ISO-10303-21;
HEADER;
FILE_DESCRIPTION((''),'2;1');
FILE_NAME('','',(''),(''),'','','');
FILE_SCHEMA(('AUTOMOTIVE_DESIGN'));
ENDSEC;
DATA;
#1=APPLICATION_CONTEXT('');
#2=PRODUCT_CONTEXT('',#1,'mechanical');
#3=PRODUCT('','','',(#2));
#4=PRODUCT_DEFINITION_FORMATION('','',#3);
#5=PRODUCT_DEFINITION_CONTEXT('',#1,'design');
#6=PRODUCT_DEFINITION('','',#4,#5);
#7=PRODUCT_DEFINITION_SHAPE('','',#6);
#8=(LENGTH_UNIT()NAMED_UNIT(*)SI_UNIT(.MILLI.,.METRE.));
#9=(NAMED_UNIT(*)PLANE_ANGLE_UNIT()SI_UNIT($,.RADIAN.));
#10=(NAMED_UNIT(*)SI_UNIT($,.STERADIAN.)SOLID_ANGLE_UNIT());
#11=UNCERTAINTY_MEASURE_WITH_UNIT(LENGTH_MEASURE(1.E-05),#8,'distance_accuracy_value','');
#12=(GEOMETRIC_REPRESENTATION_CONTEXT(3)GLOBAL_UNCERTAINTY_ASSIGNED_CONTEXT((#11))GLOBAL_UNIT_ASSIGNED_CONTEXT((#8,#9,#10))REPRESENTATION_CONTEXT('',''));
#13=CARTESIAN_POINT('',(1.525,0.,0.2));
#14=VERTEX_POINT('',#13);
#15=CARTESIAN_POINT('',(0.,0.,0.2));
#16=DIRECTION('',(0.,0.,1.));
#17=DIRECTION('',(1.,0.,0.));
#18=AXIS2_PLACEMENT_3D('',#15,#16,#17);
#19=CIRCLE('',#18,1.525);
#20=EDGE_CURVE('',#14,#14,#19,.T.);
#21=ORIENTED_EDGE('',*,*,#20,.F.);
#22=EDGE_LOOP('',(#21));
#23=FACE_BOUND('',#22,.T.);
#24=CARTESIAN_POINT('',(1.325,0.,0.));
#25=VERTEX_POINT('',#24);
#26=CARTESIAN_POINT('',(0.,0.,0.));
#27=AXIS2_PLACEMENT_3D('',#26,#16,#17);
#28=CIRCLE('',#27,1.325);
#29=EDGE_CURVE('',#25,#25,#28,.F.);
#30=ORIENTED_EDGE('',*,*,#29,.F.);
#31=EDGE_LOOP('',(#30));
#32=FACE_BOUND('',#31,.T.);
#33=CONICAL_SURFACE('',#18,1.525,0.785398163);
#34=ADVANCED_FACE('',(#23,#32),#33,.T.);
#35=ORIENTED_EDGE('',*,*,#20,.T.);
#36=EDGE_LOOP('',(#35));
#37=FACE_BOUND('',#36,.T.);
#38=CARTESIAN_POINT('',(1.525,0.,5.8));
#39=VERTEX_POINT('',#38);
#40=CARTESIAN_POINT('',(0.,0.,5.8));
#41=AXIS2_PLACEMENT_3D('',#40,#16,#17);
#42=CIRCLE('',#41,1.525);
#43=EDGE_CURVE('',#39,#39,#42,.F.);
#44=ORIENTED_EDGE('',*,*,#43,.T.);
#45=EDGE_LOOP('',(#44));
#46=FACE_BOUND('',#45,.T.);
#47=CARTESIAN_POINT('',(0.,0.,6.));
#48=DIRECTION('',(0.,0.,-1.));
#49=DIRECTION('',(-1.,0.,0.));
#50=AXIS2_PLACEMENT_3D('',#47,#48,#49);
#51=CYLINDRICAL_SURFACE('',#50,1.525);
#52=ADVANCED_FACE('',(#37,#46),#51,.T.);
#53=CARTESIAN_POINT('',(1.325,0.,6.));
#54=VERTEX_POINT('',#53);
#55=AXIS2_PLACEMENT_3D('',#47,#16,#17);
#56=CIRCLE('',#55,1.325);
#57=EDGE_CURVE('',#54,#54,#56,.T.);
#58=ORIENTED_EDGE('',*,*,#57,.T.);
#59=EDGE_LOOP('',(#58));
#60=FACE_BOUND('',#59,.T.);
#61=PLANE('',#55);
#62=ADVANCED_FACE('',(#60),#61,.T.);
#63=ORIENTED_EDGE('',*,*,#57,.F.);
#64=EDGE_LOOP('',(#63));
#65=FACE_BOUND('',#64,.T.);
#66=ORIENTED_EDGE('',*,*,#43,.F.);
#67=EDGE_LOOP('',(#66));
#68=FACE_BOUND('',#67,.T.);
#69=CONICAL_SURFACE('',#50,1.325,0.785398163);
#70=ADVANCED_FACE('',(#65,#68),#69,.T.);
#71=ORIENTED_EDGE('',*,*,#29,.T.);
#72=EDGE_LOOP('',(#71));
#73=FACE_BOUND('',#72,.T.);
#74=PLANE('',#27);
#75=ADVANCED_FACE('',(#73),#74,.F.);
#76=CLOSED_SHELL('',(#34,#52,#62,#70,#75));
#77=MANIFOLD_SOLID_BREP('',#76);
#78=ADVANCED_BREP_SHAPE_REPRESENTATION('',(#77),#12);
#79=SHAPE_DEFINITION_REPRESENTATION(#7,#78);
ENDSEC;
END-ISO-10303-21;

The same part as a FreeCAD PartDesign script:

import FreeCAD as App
import Part
import Sketcher


def edges_at(feature, points):
    """Names of the edges that pass closest to the given points."""
    edges = feature.Shape.Edges
    near = lambda p: min(range(len(edges)), key=lambda i: edges[i].distToShape(Part.Vertex(*p))[0])
    return sorted({f"Edge{near(p) + 1}" for p in points})

doc = App.newDocument("Part")
params = doc.addObject("Spreadsheet::Sheet", "Params")
for row, (alias, value) in enumerate([
    ("sketch1_diameter", "3.05 mm"),
    ("pad1_length", "6 mm"),
    ("chamfer_size", "0.2 mm"),
], start=1):
    params.set(f"A{row}", alias)
    params.set(f"B{row}", "=" + value)
    params.setAlias(f"B{row}", alias)

body = doc.addObject("PartDesign::Body", "Body")

sketch1 = body.newObject("Sketcher::SketchObject", "Sketch")
sketch1.AttachmentSupport = (doc.getObject("XY_Plane"), [""])
sketch1.MapMode = "FlatFace"
sketch1.addGeometry(Part.Circle(App.Vector(0, 0, 0), App.Vector(0, 0, 1), 1.525), False)
sketch1.addConstraint([
    Sketcher.Constraint("Coincident", 0, 3, -1, 1),
    Sketcher.Constraint("Diameter", 0, 3.05),
])
sketch1.setExpression("Constraints[1]", "Params.sketch1_diameter")
pad1 = body.newObject("PartDesign::Pad", "Pad")
pad1.Profile = sketch1
pad1.setExpression("Length", "Params.pad1_length")
doc.recompute()

chamfer = body.newObject("PartDesign::Chamfer", "Chamfer")
chamfer.Base = (pad1, edges_at(pad1, [(-1.525, 0, 0), (-1.525, 0, 6)]))
chamfer.setExpression("Size", "Params.chamfer_size")

doc.recompute()
